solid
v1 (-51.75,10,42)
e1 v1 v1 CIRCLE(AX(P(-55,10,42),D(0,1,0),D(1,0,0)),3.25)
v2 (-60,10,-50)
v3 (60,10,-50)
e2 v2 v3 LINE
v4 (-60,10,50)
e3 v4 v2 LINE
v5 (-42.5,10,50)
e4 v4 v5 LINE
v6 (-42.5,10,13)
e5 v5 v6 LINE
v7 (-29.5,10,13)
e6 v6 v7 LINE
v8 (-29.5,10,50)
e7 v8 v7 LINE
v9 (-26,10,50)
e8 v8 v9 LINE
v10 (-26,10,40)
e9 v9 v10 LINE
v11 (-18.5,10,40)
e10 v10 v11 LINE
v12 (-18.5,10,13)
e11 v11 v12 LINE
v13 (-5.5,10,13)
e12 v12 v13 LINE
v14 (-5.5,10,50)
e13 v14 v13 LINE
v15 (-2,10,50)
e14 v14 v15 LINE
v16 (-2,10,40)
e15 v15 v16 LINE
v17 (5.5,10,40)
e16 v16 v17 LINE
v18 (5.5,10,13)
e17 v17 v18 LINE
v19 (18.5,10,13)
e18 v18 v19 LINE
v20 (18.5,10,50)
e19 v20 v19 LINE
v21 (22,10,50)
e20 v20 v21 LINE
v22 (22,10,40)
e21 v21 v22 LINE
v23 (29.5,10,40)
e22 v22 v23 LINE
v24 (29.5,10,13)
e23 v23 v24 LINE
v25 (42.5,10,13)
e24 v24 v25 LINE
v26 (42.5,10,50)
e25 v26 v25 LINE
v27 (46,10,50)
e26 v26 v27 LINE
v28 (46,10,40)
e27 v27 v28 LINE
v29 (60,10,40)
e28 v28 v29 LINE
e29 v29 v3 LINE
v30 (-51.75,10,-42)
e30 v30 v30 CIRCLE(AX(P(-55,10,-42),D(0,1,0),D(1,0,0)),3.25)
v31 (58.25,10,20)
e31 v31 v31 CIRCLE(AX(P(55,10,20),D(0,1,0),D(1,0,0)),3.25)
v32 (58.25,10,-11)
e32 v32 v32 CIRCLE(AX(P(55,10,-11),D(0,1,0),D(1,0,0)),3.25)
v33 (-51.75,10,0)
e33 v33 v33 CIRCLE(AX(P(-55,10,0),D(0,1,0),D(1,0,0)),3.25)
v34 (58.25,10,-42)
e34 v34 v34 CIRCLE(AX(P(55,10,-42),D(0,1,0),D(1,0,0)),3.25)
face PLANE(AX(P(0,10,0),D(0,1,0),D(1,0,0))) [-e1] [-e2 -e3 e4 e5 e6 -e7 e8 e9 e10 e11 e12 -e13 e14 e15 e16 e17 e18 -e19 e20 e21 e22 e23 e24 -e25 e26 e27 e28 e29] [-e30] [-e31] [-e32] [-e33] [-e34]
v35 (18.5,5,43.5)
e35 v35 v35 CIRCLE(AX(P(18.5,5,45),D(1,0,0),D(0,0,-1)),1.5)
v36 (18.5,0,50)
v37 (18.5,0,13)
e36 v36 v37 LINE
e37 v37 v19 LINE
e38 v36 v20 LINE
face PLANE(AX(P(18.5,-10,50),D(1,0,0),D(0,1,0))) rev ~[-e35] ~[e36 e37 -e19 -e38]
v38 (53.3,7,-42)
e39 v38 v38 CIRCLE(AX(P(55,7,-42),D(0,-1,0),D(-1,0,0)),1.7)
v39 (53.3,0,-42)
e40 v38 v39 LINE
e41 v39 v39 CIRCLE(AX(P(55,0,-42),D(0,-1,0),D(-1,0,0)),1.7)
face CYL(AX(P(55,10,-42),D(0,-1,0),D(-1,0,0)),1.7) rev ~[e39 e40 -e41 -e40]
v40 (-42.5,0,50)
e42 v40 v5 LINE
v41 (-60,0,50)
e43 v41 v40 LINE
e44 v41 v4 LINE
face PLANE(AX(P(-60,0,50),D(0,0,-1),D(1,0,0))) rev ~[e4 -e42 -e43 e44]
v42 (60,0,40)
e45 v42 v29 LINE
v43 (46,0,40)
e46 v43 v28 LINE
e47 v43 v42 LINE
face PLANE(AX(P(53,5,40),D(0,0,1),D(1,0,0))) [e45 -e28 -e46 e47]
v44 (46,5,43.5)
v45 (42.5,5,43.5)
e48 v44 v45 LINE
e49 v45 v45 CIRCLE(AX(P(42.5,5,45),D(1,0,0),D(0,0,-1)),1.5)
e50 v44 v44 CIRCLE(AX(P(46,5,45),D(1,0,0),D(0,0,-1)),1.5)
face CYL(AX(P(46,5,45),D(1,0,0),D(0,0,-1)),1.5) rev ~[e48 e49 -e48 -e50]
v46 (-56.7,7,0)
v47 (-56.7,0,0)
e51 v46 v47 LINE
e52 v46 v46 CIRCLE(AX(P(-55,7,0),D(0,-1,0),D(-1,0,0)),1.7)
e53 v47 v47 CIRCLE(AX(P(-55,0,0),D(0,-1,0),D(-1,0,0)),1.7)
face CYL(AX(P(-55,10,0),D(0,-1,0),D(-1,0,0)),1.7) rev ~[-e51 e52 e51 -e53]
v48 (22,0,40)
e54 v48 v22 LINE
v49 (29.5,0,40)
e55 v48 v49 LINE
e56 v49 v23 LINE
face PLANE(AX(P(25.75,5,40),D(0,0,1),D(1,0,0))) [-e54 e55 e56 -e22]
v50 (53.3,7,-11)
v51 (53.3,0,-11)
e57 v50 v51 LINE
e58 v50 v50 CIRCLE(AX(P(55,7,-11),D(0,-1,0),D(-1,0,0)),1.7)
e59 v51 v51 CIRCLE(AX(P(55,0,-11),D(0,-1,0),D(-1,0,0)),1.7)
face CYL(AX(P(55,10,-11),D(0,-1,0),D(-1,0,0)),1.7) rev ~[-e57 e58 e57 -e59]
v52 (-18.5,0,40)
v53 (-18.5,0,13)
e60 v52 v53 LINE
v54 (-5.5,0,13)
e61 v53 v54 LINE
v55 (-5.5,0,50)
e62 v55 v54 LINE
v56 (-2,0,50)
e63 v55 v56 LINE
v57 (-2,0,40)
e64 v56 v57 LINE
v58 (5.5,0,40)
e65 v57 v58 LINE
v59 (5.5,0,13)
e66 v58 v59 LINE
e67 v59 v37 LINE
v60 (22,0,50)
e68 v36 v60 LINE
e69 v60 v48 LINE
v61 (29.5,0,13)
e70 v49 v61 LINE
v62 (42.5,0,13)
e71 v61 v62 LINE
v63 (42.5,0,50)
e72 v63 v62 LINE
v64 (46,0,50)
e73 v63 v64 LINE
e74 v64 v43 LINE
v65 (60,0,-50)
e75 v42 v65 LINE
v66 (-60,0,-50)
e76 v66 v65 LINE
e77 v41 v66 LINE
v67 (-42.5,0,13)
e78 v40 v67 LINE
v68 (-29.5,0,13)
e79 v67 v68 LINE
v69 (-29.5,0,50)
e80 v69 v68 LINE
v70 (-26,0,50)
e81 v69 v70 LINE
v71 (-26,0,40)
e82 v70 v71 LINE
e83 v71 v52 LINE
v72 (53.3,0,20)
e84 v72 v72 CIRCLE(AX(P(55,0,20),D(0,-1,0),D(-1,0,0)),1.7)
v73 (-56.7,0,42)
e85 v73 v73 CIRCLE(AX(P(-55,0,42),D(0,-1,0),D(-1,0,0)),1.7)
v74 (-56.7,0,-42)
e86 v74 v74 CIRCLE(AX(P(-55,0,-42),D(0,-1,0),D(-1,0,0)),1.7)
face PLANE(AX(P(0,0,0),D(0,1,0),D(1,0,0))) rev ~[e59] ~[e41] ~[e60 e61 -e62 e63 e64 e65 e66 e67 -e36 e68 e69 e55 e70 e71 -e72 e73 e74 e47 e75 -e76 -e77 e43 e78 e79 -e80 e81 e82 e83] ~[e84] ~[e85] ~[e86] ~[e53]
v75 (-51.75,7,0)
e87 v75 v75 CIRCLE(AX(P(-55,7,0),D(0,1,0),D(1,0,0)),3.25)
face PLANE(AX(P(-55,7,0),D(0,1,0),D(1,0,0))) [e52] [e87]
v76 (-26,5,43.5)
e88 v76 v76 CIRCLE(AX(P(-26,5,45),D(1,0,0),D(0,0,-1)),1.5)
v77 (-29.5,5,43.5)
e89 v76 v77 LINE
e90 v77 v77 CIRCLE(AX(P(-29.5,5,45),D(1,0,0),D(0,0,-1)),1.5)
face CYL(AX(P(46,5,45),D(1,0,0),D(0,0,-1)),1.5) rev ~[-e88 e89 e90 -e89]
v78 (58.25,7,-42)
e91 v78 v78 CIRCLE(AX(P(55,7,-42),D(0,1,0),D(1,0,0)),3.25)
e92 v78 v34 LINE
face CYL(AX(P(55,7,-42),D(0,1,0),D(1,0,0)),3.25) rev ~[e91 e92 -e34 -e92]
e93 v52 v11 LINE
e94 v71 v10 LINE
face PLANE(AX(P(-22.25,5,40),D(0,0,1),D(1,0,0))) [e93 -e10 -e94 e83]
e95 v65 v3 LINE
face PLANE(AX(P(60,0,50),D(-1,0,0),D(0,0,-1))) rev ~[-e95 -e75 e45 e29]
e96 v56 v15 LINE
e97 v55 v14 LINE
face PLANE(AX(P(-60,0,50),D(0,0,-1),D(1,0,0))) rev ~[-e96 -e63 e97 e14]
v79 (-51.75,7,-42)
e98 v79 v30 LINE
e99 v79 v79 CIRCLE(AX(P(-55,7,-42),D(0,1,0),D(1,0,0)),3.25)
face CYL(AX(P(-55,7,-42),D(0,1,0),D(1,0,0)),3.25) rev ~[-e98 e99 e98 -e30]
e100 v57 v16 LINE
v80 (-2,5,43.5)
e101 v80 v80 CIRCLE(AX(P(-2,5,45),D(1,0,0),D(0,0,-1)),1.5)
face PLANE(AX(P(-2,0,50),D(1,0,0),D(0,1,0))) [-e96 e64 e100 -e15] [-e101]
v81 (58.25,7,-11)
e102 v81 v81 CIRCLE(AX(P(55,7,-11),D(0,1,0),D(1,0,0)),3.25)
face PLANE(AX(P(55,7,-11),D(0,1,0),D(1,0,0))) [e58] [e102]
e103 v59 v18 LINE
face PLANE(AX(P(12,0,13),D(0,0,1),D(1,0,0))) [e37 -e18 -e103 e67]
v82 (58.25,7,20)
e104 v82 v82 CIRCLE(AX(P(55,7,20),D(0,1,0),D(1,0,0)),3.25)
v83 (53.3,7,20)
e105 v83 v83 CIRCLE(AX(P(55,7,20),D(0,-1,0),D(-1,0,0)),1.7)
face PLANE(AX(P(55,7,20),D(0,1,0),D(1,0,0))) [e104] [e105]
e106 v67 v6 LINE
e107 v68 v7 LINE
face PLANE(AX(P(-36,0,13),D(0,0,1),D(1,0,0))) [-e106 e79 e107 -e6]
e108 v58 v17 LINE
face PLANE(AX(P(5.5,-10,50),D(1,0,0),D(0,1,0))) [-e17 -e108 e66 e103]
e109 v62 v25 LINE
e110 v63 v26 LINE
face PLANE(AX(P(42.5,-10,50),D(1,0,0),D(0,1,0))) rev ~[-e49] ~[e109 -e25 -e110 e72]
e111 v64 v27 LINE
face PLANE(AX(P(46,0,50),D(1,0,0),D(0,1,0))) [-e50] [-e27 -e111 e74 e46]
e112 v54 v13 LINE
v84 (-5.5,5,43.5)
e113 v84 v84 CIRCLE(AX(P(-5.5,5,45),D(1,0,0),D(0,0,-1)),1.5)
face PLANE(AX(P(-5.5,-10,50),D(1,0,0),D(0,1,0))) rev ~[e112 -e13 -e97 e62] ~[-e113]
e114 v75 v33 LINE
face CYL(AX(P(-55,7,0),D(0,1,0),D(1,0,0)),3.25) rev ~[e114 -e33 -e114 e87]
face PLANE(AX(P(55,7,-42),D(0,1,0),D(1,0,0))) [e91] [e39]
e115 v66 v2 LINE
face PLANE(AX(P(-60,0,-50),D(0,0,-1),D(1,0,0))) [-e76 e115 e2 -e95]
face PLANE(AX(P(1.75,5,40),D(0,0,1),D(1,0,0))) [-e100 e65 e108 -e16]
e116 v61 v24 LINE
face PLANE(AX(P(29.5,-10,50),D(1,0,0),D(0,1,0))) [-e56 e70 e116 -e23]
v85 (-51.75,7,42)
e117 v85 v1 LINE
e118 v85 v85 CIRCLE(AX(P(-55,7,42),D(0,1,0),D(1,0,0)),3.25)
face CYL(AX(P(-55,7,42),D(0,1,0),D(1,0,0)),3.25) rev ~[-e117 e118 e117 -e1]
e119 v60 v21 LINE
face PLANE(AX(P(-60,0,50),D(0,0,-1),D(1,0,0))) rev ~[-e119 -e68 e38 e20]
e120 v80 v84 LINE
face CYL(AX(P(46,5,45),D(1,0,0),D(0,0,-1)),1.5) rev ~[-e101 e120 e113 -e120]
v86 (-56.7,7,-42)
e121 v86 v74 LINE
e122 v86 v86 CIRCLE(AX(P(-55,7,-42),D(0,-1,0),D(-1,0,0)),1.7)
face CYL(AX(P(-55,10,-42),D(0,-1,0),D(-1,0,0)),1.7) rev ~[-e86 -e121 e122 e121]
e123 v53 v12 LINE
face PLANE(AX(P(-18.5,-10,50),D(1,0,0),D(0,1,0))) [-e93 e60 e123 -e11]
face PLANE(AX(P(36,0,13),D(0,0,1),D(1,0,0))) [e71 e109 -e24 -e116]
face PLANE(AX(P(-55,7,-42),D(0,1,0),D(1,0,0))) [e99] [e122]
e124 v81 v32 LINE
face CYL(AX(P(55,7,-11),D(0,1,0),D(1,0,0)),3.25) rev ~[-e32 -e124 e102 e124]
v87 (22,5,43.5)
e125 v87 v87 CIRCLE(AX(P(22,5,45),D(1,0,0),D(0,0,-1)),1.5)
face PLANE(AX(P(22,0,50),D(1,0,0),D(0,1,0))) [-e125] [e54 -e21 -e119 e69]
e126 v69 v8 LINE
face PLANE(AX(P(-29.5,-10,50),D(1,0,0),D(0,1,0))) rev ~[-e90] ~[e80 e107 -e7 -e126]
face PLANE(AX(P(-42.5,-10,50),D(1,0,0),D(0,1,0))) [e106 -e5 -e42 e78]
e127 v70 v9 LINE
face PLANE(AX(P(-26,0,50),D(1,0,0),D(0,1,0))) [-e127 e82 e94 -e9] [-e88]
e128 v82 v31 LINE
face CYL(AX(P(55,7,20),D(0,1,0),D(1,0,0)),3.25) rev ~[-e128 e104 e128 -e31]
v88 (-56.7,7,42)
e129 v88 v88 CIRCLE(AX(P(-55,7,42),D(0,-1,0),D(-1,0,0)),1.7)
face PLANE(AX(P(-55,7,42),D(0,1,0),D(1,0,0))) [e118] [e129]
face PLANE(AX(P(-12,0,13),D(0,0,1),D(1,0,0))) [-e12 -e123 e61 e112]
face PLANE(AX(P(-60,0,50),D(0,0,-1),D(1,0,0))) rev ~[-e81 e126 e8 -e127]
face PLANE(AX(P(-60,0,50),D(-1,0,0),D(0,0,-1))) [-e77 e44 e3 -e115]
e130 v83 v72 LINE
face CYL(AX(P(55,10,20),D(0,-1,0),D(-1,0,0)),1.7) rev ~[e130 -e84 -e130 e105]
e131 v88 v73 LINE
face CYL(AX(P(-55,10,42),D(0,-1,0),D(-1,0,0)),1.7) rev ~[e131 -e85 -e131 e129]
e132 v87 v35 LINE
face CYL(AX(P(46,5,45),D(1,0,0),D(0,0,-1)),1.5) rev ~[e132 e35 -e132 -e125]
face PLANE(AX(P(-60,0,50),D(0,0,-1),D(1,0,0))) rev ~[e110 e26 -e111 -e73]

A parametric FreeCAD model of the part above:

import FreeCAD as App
import Part
import Sketcher

V = App.Vector

doc = App.newDocument("Part")
body = doc.addObject("PartDesign::Body", "Body")

# Sketch on XZ plane
sketch1 = body.newObject("Sketcher::SketchObject", "Sketch")
sketch1.AttachmentSupport = (doc.getObject("XZ_Plane"), [""])
sketch1.MapMode = "FlatFace"
sketch1.addGeometry([
    Part.LineSegment(V(-60, -50, 0), V(-60, 50, 0)),
    Part.LineSegment(V(-60, 50, 0), V(60, 50, 0)),
    Part.LineSegment(V(60, 50, 0), V(60, -50, 0)),
    Part.LineSegment(V(60, -50, 0), V(-60, -50, 0)),
], False)
sketch1.addConstraint([
    Sketcher.Constraint("Coincident", 0, 2, 1, 1),
    Sketcher.Constraint("Coincident", 1, 2, 2, 1),
    Sketcher.Constraint("Coincident", 2, 2, 3, 1),
    Sketcher.Constraint("Coincident", 3, 2, 0, 1),
    Sketcher.Constraint("Vertical", 0),
    Sketcher.Constraint("Horizontal", 1),
    Sketcher.Constraint("Vertical", 2),
    Sketcher.Constraint("Horizontal", 3),
    Sketcher.Constraint("Symmetric", 0, 2, 2, 2, -1, 1),
    Sketcher.Constraint("DistanceX", 1, 1, 1, 2, 120.0),
    Sketcher.Constraint("DistanceY", 0, 1, 0, 2, 100.0),
])
pad1 = body.newObject("PartDesign::Pad", "Pad")
pad1.Profile = sketch1
pad1.Length = 10
pad1.Reversed = True

# Sketch on XY plane
sketch2 = body.newObject("Sketcher::SketchObject", "Sketch001")
sketch2.AttachmentSupport = (doc.getObject("XY_Plane"), [""])
sketch2.MapMode = "FlatFace"
sketch2.AttachmentOffset = App.Placement(V(0, 0, 50), App.Rotation())
sketch2.addGeometry([
    Part.LineSegment(V(-42, 10, 0), V(-42, -10, 0)),  # 0
    Part.LineSegment(V(-42, -10, 0), V(-30, -10, 0)),  # 1
    Part.LineSegment(V(-30, -10, 0), V(-30, 10, 0)),  # 2
    Part.LineSegment(V(-30, 10, 0), V(-42, 10, 0)),  # 3
    Part.LineSegment(V(-18, 10, 0), V(-18, -10, 0)),  # 4
    Part.LineSegment(V(-18, -10, 0), V(-6, -10, 0)),  # 5
    Part.LineSegment(V(-6, -10, 0), V(-6, 10, 0)),  # 6
    Part.LineSegment(V(-6, 10, 0), V(-18, 10, 0)),  # 7
    Part.LineSegment(V(6, 10, 0), V(6, -10, 0)),  # 8
    Part.LineSegment(V(6, -10, 0), V(18, -10, 0)),  # 9
    Part.LineSegment(V(18, -10, 0), V(18, 10, 0)),  # 10
    Part.LineSegment(V(18, 10, 0), V(6, 10, 0)),  # 11
    Part.LineSegment(V(30, 10, 0), V(30, -10, 0)),  # 12
    Part.LineSegment(V(30, -10, 0), V(42, -10, 0)),  # 13
    Part.LineSegment(V(42, -10, 0), V(42, 10, 0)),  # 14
    Part.LineSegment(V(42, 10, 0), V(30, 10, 0)),  # 15
], False)
sketch2.addConstraint([
    Sketcher.Constraint("Coincident", 0, 2, 1, 1),
    Sketcher.Constraint("Coincident", 1, 2, 2, 1),
    Sketcher.Constraint("Coincident", 2, 2, 3, 1),
    Sketcher.Constraint("Coincident", 3, 2, 0, 1),
    Sketcher.Constraint("Coincident", 4, 2, 5, 1),
    Sketcher.Constraint("Coincident", 5, 2, 6, 1),
    Sketcher.Constraint("Coincident", 6, 2, 7, 1),
    Sketcher.Constraint("Coincident", 7, 2, 4, 1),
    Sketcher.Constraint("Coincident", 8, 2, 9, 1),
    Sketcher.Constraint("Coincident", 9, 2, 10, 1),
    Sketcher.Constraint("Coincident", 10, 2, 11, 1),
    Sketcher.Constraint("Coincident", 11, 2, 8, 1),
    Sketcher.Constraint("Coincident", 12, 2, 13, 1),
    Sketcher.Constraint("Coincident", 13, 2, 14, 1),
    Sketcher.Constraint("Coincident", 14, 2, 15, 1),
    Sketcher.Constraint("Coincident", 15, 2, 12, 1),
    Sketcher.Constraint("Vertical", 0),
    Sketcher.Constraint("Horizontal", 1),
    Sketcher.Constraint("Vertical", 2),
    Sketcher.Constraint("Horizontal", 3),
    Sketcher.Constraint("Vertical", 4),
    Sketcher.Constraint("Horizontal", 5),
    Sketcher.Constraint("Vertical", 6),
    Sketcher.Constraint("Horizontal", 7),
    Sketcher.Constraint("Vertical", 8),
    Sketcher.Constraint("Horizontal", 9),
    Sketcher.Constraint("Vertical", 10),
    Sketcher.Constraint("Horizontal", 11),
    Sketcher.Constraint("Vertical", 12),
    Sketcher.Constraint("Horizontal", 13),
    Sketcher.Constraint("Vertical", 14),
    Sketcher.Constraint("Horizontal", 15),
    Sketcher.Constraint("Symmetric", 6, 2, 8, 2, -1, 1),
    Sketcher.Constraint("Symmetric", 4, 2, 10, 2, -1, 1),
    Sketcher.Constraint("Symmetric", 2, 2, 12, 2, -1, 1),
    Sketcher.Constraint("Symmetric", 0, 2, 14, 2, -1, 1),
    Sketcher.Constraint("Horizontal", 1, 2, 4, 2),
    Sketcher.Constraint("Horizontal", 3, 2, 6, 2),
    Sketcher.Constraint("Horizontal", 5, 2, 8, 2),
    Sketcher.Constraint("Equal", 3, 5),
    Sketcher.Constraint("DistanceX", 1, 1, 1, 2, 13.0),
    Sketcher.Constraint("DistanceY", 0, 2, 0, 1, 20.0),
    Sketcher.Constraint("DistanceX", 1, 2, 4, 2, 11.0),
    Sketcher.Constraint("DistanceX", 5, 2, 8, 2, 11.0),
])
pocket1 = body.newObject("PartDesign::Pocket", "Pocket")
pocket1.Profile = sketch2
pocket1.Length = 37

# Sketch on XY plane
sketch3 = body.newObject("Sketcher::SketchObject", "Sketch002")
sketch3.AttachmentSupport = (doc.getObject("XY_Plane"), [""])
sketch3.MapMode = "FlatFace"
sketch3.AttachmentOffset = App.Placement(V(0, 0, 50), App.Rotation())
sketch3.addGeometry([
    Part.LineSegment(V(46, 10, 0), V(46, 0, 0)),  # 0
    Part.LineSegment(V(46, 0, 0), V(60, 0, 0)),  # 1
    Part.LineSegment(V(60, 0, 0), V(60, 10, 0)),  # 2
    Part.LineSegment(V(60, 10, 0), V(46, 10, 0)),  # 3
    Part.LineSegment(V(22, 10, 0), V(22, 0, 0)),  # 4
    Part.LineSegment(V(22, 0, 0), V(30, 0, 0)),  # 5
    Part.LineSegment(V(30, 0, 0), V(30, 10, 0)),  # 6
    Part.LineSegment(V(30, 10, 0), V(22, 10, 0)),  # 7
    Part.LineSegment(V(-2, 10, 0), V(-2, 0, 0)),  # 8
    Part.LineSegment(V(-2, 0, 0), V(6, 0, 0)),  # 9
    Part.LineSegment(V(6, 0, 0), V(6, 10, 0)),  # 10
    Part.LineSegment(V(6, 10, 0), V(-2, 10, 0)),  # 11
    Part.LineSegment(V(-26, 10, 0), V(-26, 0, 0)),  # 12
    Part.LineSegment(V(-26, 0, 0), V(-18, 0, 0)),  # 13
    Part.LineSegment(V(-18, 0, 0), V(-18, 10, 0)),  # 14
    Part.LineSegment(V(-18, 10, 0), V(-26, 10, 0)),  # 15
], False)
sketch3.addConstraint([
    Sketcher.Constraint("Coincident", 0, 2, 1, 1),
    Sketcher.Constraint("Coincident", 1, 2, 2, 1),
    Sketcher.Constraint("Coincident", 2, 2, 3, 1),
    Sketcher.Constraint("Coincident", 3, 2, 0, 1),
    Sketcher.Constraint("Coincident", 4, 2, 5, 1),
    Sketcher.Constraint("Coincident", 5, 2, 6, 1),
    Sketcher.Constraint("Coincident", 6, 2, 7, 1),
    Sketcher.Constraint("Coincident", 7, 2, 4, 1),
    Sketcher.Constraint("Coincident", 8, 2, 9, 1),
    Sketcher.Constraint("Coincident", 9, 2, 10, 1),
    Sketcher.Constraint("Coincident", 10, 2, 11, 1),
    Sketcher.Constraint("Coincident", 11, 2, 8, 1),
    Sketcher.Constraint("Coincident", 12, 2, 13, 1),
    Sketcher.Constraint("Coincident", 13, 2, 14, 1),
    Sketcher.Constraint("Coincident", 14, 2, 15, 1),
    Sketcher.Constraint("Coincident", 15, 2, 12, 1),
    Sketcher.Constraint("Vertical", 0),
    Sketcher.Constraint("Horizontal", 1),
    Sketcher.Constraint("Vertical", 2),
    Sketcher.Constraint("Horizontal", 3),
    Sketcher.Constraint("Vertical", 4),
    Sketcher.Constraint("Horizontal", 5),
    Sketcher.Constraint("Vertical", 6),
    Sketcher.Constraint("Horizontal", 7),
    Sketcher.Constraint("Vertical", 8),
    Sketcher.Constraint("Horizontal", 9),
    Sketcher.Constraint("Vertical", 10),
    Sketcher.Constraint("Horizontal", 11),
    Sketcher.Constraint("Vertical", 12),
    Sketcher.Constraint("Horizontal", 13),
    Sketcher.Constraint("Vertical", 14),
    Sketcher.Constraint("Horizontal", 15),
    Sketcher.Constraint("PointOnObject", 0, 2, -1),
    Sketcher.Constraint("PointOnObject", 4, 2, -1),
    Sketcher.Constraint("PointOnObject", 8, 2, -1),
    Sketcher.Constraint("PointOnObject", 12, 2, -1),
    Sketcher.Constraint("Horizontal", 3, 2, 6, 2),
    Sketcher.Constraint("Horizontal", 7, 2, 10, 2),
    Sketcher.Constraint("Horizontal", 11, 2, 14, 2),
    Sketcher.Constraint("Equal", 7, 9),
    Sketcher.Constraint("Equal", 11, 13),
    Sketcher.Constraint("DistanceX", 1, 1, 1, 2, 14.0),
    Sketcher.Constraint("DistanceY", 0, 2, 0, 1, 10.0),
    Sketcher.Constraint("DistanceX", 5, 1, 5, 2, 7.5),
    Sketcher.Constraint("DistanceX", -1, 1, 0, 2, 46.0),
    Sketcher.Constraint("DistanceX", -1, 1, 4, 2, 22.0),
    Sketcher.Constraint("DistanceX", 8, 2, -1, 1, 2.0),
    Sketcher.Constraint("DistanceX", 12, 2, -1, 1, 26.0),
])
pocket2 = body.newObject("PartDesign::Pocket", "Pocket001")
pocket2.Profile = sketch3
pocket2.Length = 10

# Sketch on YZ plane
sketch4 = body.newObject("Sketcher::SketchObject", "Sketch003")
sketch4.AttachmentSupport = (doc.getObject("YZ_Plane"), [""])
sketch4.MapMode = "FlatFace"
sketch4.AttachmentOffset = App.Placement(V(0, 0, 46), App.Rotation())
sketch4.addGeometry(Part.Circle(V(5, 45, 0), V(0, 0, 1), 1.5), False)
sketch4.addConstraint([
    Sketcher.Constraint("Diameter", 0, 3.0),
    Sketcher.Constraint("DistanceX", -1, 1, 0, 3, 5.0),
    Sketcher.Constraint("DistanceY", -1, 1, 0, 3, 45.0),
])
pocket3 = body.newObject("PartDesign::Pocket", "Pocket002")
pocket3.Profile = sketch4
pocket3.Length = 75.5

# Sketch on XZ plane
sketch5 = body.newObject("Sketcher::SketchObject", "Sketch004")
sketch5.AttachmentSupport = (doc.getObject("XZ_Plane"), [""])
sketch5.MapMode = "FlatFace"
sketch5.AttachmentOffset = App.Placement(V(0, 0, -10), App.Rotation())
sketch5.addGeometry([
    Part.Circle(V(55, -42, 0), V(0, 0, 1), 1.7),  # 0
    Part.Circle(V(55, 20, 0), V(0, 0, 1), 1.7),  # 1
    Part.Circle(V(-55, -42, 0), V(0, 0, 1), 1.7),  # 2
    Part.Circle(V(-55, 42, 0), V(0, 0, 1), 1.7),  # 3
    Part.Circle(V(-55, 0, 0), V(0, 0, 1), 1.7),  # 4
    Part.Circle(V(55, -11, 0), V(0, 0, 1), 1.7),  # 5
], False)
sketch5.addConstraint([
    Sketcher.Constraint("Equal", 0, 1),
    Sketcher.Constraint("Equal", 1, 2),
    Sketcher.Constraint("Equal", 2, 3),
    Sketcher.Constraint("Equal", 3, 4),
    Sketcher.Constraint("Equal", 4, 5),
    Sketcher.Constraint("Symmetric", 0, 3, 3, 3, -1, 1),
    Sketcher.Constraint("Symmetric", 0, 3, 2, 3, -2),
    Sketcher.Constraint("PointOnObject", 4, 3, -1),
    Sketcher.Constraint("Vertical", 0, 3, 1, 3),
    Sketcher.Constraint("Vertical", 3, 3, 4, 3),
    Sketcher.Constraint("Vertical", 1, 3, 5, 3),
    Sketcher.Constraint("Diameter", 0, 3.4),
    Sketcher.Constraint("DistanceX", -1, 1, 0, 3, 55.0),
    Sketcher.Constraint("DistanceY", 0, 3, -1, 1, 42.0),
    Sketcher.Constraint("DistanceY", -1, 1, 1, 3, 20.0),
    Sketcher.Constraint("DistanceY", 5, 3, -1, 1, 11.0),
])
doc.recompute()
hole = body.newObject("PartDesign::Hole", "Hole")
hole.Profile = sketch5
hole.ThreadType = "None"
hole.Diameter = 3.4
hole.DepthType = "Dimension"
hole.Depth = 23
hole.DrillPoint = "Angled"
hole.DrillPointAngle = 118
hole.HoleCutType = "Counterbore"
hole.HoleCutDiameter = 6.5
hole.HoleCutDepth = 3
hole.Reversed = True

doc.recompute()
